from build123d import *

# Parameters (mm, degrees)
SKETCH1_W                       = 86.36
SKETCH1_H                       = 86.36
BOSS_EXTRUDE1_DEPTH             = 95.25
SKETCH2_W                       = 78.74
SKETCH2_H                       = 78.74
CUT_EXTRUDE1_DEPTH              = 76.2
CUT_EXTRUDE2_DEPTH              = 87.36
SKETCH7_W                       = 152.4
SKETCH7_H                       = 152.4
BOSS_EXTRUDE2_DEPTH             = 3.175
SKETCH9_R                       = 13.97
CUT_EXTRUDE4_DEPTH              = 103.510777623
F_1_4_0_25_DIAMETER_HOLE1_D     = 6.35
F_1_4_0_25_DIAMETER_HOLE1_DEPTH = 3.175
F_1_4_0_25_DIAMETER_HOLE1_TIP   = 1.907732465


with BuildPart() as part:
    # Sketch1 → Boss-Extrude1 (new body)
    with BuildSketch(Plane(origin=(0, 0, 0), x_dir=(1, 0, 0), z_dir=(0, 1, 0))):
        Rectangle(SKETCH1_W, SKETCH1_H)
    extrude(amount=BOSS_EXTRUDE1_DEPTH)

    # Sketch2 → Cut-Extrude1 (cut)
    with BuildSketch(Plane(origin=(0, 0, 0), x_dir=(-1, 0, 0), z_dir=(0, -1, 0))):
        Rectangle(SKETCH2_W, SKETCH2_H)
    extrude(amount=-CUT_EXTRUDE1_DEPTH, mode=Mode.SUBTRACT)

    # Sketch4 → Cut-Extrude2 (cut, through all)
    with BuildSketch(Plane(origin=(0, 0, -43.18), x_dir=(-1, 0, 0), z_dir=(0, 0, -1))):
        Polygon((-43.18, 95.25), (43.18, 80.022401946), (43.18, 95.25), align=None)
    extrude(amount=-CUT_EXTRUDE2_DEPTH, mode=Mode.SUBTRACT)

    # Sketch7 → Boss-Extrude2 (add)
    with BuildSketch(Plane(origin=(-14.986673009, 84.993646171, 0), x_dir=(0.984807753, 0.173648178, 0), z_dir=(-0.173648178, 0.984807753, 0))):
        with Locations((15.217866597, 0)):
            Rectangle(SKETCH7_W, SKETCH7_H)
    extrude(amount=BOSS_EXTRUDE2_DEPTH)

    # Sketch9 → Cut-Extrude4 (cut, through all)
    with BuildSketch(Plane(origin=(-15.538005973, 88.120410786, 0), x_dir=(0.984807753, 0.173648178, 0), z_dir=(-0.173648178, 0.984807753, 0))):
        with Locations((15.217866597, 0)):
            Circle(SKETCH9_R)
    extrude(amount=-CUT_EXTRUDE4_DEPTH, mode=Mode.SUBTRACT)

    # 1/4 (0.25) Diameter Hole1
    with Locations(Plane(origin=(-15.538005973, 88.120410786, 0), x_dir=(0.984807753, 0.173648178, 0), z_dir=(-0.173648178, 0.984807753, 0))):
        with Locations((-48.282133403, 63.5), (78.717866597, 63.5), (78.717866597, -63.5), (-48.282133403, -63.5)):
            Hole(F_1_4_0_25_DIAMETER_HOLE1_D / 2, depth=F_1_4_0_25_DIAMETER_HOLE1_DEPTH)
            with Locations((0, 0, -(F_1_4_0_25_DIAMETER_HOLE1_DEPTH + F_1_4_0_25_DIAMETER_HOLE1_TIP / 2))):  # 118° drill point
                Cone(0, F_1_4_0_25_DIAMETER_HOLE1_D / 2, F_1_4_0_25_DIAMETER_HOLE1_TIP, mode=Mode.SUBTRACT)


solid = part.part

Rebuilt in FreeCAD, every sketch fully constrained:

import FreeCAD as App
import Part
import Sketcher

V = App.Vector
Q = App.Units.Quantity

doc = App.newDocument("Part")
body = doc.addObject("PartDesign::Body", "Body")

# Sketch on XZ plane
sketch1 = doc.addObject("Sketcher::SketchObject", "Sketch")
body.addObject(sketch1)
sketch1.AttachmentSupport = (doc.XZ_Plane, [""])
sketch1.MapMode = "FlatFace"
sketch1.addGeometry(Part.LineSegment(V(-43, -43, 0), V(-43, 43, 0)), False)
sketch1.addGeometry(Part.LineSegment(V(-43, 43, 0), V(43, 43, 0)), False)
sketch1.addGeometry(Part.LineSegment(V(43, 43, 0), V(43, -43, 0)), False)
sketch1.addGeometry(Part.LineSegment(V(43, -43, 0), V(-43, -43, 0)), False)
sketch1.addConstraint(Sketcher.Constraint("Coincident", 0, 2, 1, 1))
sketch1.addConstraint(Sketcher.Constraint("Coincident", 1, 2, 2, 1))
sketch1.addConstraint(Sketcher.Constraint("Coincident", 2, 2, 3, 1))
sketch1.addConstraint(Sketcher.Constraint("Coincident", 3, 2, 0, 1))
sketch1.addConstraint(Sketcher.Constraint("Vertical", 0))
sketch1.addConstraint(Sketcher.Constraint("Horizontal", 1))
sketch1.addConstraint(Sketcher.Constraint("Vertical", 2))
sketch1.addConstraint(Sketcher.Constraint("Horizontal", 3))
sketch1.addConstraint(Sketcher.Constraint("Symmetric", 0, 2, 2, 2, -1, 1))
sketch1.addConstraint(Sketcher.Constraint("Equal", 3, 0))
sketch1.addConstraint(Sketcher.Constraint("DistanceX", 1, 1, 1, 2, Q("3.4 in")))
pad1 = doc.addObject("PartDesign::Pad", "Pad")
body.addObject(pad1)
pad1.Profile = sketch1
pad1.Length = Q("3.75 in")
pad1.Reversed = True

# Sketch on XZ plane
sketch2 = doc.addObject("Sketcher::SketchObject", "Sketch001")
body.addObject(sketch2)
sketch2.AttachmentSupport = (doc.XZ_Plane, [""])
sketch2.MapMode = "FlatFace"
sketch2.addGeometry(Part.LineSegment(V(39, -39, 0), V(39, 39, 0)), False)
sketch2.addGeometry(Part.LineSegment(V(39, 39, 0), V(-39, 39, 0)), False)
sketch2.addGeometry(Part.LineSegment(V(-39, 39, 0), V(-39, -39, 0)), False)
sketch2.addGeometry(Part.LineSegment(V(-39, -39, 0), V(39, -39, 0)), False)
sketch2.addConstraint(Sketcher.Constraint("Coincident", 0, 2, 1, 1))
sketch2.addConstraint(Sketcher.Constraint("Coincident", 1, 2, 2, 1))
sketch2.addConstraint(Sketcher.Constraint("Coincident", 2, 2, 3, 1))
sketch2.addConstraint(Sketcher.Constraint("Coincident", 3, 2, 0, 1))
sketch2.addConstraint(Sketcher.Constraint("Vertical", 0))
sketch2.addConstraint(Sketcher.Constraint("Horizontal", 1))
sketch2.addConstraint(Sketcher.Constraint("Vertical", 2))
sketch2.addConstraint(Sketcher.Constraint("Horizontal", 3))
sketch2.addConstraint(Sketcher.Constraint("Symmetric", 0, 2, 2, 2, -1, 1))
sketch2.addConstraint(Sketcher.Constraint("Equal", 3, 0))
sketch2.addConstraint(Sketcher.Constraint("DistanceX", 1, 2, 1, 1, Q("3.1 in")))
pocket1 = doc.addObject("PartDesign::Pocket", "Pocket")
body.addObject(pocket1)
pocket1.Profile = sketch2
pocket1.Length = Q("3 in")

# Sketch on XY plane
sketch3 = doc.addObject("Sketcher::SketchObject", "Sketch002")
body.addObject(sketch3)
sketch3.AttachmentSupport = (doc.XY_Plane, [""])
sketch3.MapMode = "FlatFace"
sketch3.AttachmentOffset = App.Placement(V(0, 0, -1.7 * 25.4), App.Rotation())
sketch3.addGeometry(Part.LineSegment(V(43, 95, 0), V(-43, 80, 0)), False)
sketch3.addGeometry(Part.LineSegment(V(-43, 80, 0), V(-43, 95, 0)), False)
sketch3.addGeometry(Part.LineSegment(V(-43, 95, 0), V(43, 95, 0)), False)
sketch3.addConstraint(Sketcher.Constraint("Coincident", 0, 2, 1, 1))
sketch3.addConstraint(Sketcher.Constraint("Coincident", 1, 2, 2, 1))
sketch3.addConstraint(Sketcher.Constraint("Coincident", 2, 2, 0, 1))
sketch3.addConstraint(Sketcher.Constraint("Vertical", 1))
sketch3.addConstraint(Sketcher.Constraint("Horizontal", 2))
sketch3.addConstraint(Sketcher.Constraint("DistanceX", 2, 1, 2, 2, Q("3.4 in")))
sketch3.addConstraint(Sketcher.Constraint("Angle", 0, Q("-170 deg")))
sketch3.addConstraint(Sketcher.Constraint("DistanceX", 0, 2, -1, 1, Q("1.7 in")))
sketch3.addConstraint(Sketcher.Constraint("DistanceY", -1, 1, 1, 2, Q("3.75 in")))
pocket2 = doc.addObject("PartDesign::Pocket", "Pocket001")
body.addObject(pocket2)
pocket2.Profile = sketch3
pocket2.Type = "ThroughAll"
pocket2.Reversed = True

# Sketch on an angled plane
sketch4 = doc.addObject("Sketcher::SketchObject", "Sketch003")
body.addObject(sketch4)
sketch4.Placement = App.Placement(V(-14.986673, 84.993646, 0), App.Rotation(V(0.984807753, 0.173648178, 0), V(0, 0, -1), V(-0.173648178, 0.984807753, 0), "ZXY"))
sketch4.addGeometry(Part.LineSegment(V(-61, 76, 0), V(-61, -76, 0)), False)
sketch4.addGeometry(Part.LineSegment(V(-61, -76, 0), V(91, -76, 0)), False)
sketch4.addGeometry(Part.LineSegment(V(91, -76, 0), V(91, 76, 0)), False)
sketch4.addGeometry(Part.LineSegment(V(91, 76, 0), V(-61, 76, 0)), False)
sketch4.addConstraint(Sketcher.Constraint("Coincident", 0, 2, 1, 1))
sketch4.addConstraint(Sketcher.Constraint("Coincident", 1, 2, 2, 1))
sketch4.addConstraint(Sketcher.Constraint("Coincident", 2, 2, 3, 1))
sketch4.addConstraint(Sketcher.Constraint("Coincident", 3, 2, 0, 1))
sketch4.addConstraint(Sketcher.Constraint("Vertical", 0))
sketch4.addConstraint(Sketcher.Constraint("Horizontal", 1))
sketch4.addConstraint(Sketcher.Constraint("Vertical", 2))
sketch4.addConstraint(Sketcher.Constraint("Horizontal", 3))
sketch4.addConstraint(Sketcher.Constraint("Equal", 3, 0))
sketch4.addConstraint(Sketcher.Constraint("DistanceX", 1, 1, 1, 2, Q("6 in")))
sketch4.addConstraint(Sketcher.Constraint("DistanceY", 0, 2, -1, 1, Q("3 in")))
sketch4.addConstraint(Sketcher.Constraint("DistanceX", 0, 2, -1, 1, 60.982133))
pad2 = doc.addObject("PartDesign::Pad", "Pad001")
body.addObject(pad2)
pad2.Profile = sketch4
pad2.Length = Q("0.125 in")

# Sketch on an angled plane
sketch5 = doc.addObject("Sketcher::SketchObject", "Sketch004")
body.addObject(sketch5)
sketch5.Placement = App.Placement(V(-15.538006, 88.120411, 0), App.Rotation(V(0.984807753, 0.173648178, 0), V(0, 0, -1), V(-0.173648178, 0.984807753, 0), "ZXY"))
sketch5.addGeometry(Part.Circle(V(15, 0, 0), V(0, 0, 1), 14), False)
sketch5.addConstraint(Sketcher.Constraint("PointOnObject", 0, 3, -1))
sketch5.addConstraint(Sketcher.Constraint("Diameter", 0, Q("1.1 in")))
sketch5.addConstraint(Sketcher.Constraint("DistanceX", -1, 1, 0, 3, 15.217867))
pocket3 = doc.addObject("PartDesign::Pocket", "Pocket002")
body.addObject(pocket3)
pocket3.Profile = sketch5
pocket3.Type = "ThroughAll"

# Sketch on an angled plane
sketch6 = doc.addObject("Sketcher::SketchObject", "Sketch005")
body.addObject(sketch6)
sketch6.Placement = App.Placement(V(-15.538006, 88.120411, 0), App.Rotation(V(0.984807753, 0.173648178, 0), V(0, 0, -1), V(-0.173648178, 0.984807753, 0), "ZXY"))
sketch6.addGeometry(Part.Circle(V(-48.3, 63.5, 0), V(0, 0, 1), 3.2), False)
sketch6.addGeometry(Part.Circle(V(78.7, 63.5, 0), V(0, 0, 1), 3.2), False)
sketch6.addGeometry(Part.Circle(V(78.7, -63.5, 0), V(0, 0, 1), 3.2), False)
sketch6.addGeometry(Part.Circle(V(-48.3, -63.5, 0), V(0, 0, 1), 3.2), False)
sketch6.addConstraint(Sketcher.Constraint("Equal", 0, 1))
sketch6.addConstraint(Sketcher.Constraint("Equal", 1, 2))
sketch6.addConstraint(Sketcher.Constraint("Equal", 2, 3))
sketch6.addConstraint(Sketcher.Constraint("Symmetric", 1, 3, 2, 3, -1))
sketch6.addConstraint(Sketcher.Constraint("Symmetric", 0, 3, 3, 3, -1))
sketch6.addConstraint(Sketcher.Constraint("Horizontal", 0, 3, 1, 3))
sketch6.addConstraint(Sketcher.Constraint("Diameter", 0, Q("0.25 in")))
sketch6.addConstraint(Sketcher.Constraint("DistanceX", 0, 3, 1, 3, Q("5 in")))
sketch6.addConstraint(Sketcher.Constraint("DistanceY", 2, 3, 1, 3, Q("5 in")))
sketch6.addConstraint(Sketcher.Constraint("DistanceX", 0, 3, -1, 1, 48.282133))
doc.recompute()
hole = doc.addObject("PartDesign::Hole", "Hole")
body.addObject(hole)
hole.Profile = sketch6
hole.ThreadType = "None"
hole.Diameter = Q("0.25 in")
hole.DepthType = "Dimension"
hole.Depth = Q("0.125 in")
hole.DrillPoint = "Angled"
hole.DrillPointAngle = 118

doc.recompute()
